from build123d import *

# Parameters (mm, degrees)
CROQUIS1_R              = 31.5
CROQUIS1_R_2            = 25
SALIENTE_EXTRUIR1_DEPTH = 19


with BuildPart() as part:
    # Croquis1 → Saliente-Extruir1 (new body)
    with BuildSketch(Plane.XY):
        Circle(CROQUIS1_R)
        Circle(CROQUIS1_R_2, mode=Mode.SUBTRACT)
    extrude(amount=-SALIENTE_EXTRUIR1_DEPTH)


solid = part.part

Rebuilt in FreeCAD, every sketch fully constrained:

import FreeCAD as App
import Part
import Sketcher
from FreeCAD import Vector
Q = App.Units.Quantity

doc = App.newDocument("Part")
body = doc.addObject("PartDesign::Body", "Body")

# Sketch on XY plane
sketch1 = body.newObject("Sketcher::SketchObject", "Sketch")
sketch1.AttachmentSupport = (doc.getObject("XY_Plane"), [""])
sketch1.MapMode = "FlatFace"
sketch1.addGeometry([
    Part.Circle(Vector(0, 0, 0), Vector(0, 0, 1), 32),
    Part.Circle(Vector(0, 0, 0), Vector(0, 0, 1), 25),
], False)
sketch1.addConstraint([
    Sketcher.Constraint("Coincident", 0, 3, -1, 1),
    Sketcher.Constraint("Coincident", 1, 3, -1, 1),
    Sketcher.Constraint("Diameter", 0, Q("63 mm")),
    Sketcher.Constraint("Diameter", 1, Q("50 mm")),
])
pad1 = body.newObject("PartDesign::Pad", "Pad")
pad1.Profile = sketch1
pad1.Length = 19
pad1.Reversed = True

doc.recompute()
